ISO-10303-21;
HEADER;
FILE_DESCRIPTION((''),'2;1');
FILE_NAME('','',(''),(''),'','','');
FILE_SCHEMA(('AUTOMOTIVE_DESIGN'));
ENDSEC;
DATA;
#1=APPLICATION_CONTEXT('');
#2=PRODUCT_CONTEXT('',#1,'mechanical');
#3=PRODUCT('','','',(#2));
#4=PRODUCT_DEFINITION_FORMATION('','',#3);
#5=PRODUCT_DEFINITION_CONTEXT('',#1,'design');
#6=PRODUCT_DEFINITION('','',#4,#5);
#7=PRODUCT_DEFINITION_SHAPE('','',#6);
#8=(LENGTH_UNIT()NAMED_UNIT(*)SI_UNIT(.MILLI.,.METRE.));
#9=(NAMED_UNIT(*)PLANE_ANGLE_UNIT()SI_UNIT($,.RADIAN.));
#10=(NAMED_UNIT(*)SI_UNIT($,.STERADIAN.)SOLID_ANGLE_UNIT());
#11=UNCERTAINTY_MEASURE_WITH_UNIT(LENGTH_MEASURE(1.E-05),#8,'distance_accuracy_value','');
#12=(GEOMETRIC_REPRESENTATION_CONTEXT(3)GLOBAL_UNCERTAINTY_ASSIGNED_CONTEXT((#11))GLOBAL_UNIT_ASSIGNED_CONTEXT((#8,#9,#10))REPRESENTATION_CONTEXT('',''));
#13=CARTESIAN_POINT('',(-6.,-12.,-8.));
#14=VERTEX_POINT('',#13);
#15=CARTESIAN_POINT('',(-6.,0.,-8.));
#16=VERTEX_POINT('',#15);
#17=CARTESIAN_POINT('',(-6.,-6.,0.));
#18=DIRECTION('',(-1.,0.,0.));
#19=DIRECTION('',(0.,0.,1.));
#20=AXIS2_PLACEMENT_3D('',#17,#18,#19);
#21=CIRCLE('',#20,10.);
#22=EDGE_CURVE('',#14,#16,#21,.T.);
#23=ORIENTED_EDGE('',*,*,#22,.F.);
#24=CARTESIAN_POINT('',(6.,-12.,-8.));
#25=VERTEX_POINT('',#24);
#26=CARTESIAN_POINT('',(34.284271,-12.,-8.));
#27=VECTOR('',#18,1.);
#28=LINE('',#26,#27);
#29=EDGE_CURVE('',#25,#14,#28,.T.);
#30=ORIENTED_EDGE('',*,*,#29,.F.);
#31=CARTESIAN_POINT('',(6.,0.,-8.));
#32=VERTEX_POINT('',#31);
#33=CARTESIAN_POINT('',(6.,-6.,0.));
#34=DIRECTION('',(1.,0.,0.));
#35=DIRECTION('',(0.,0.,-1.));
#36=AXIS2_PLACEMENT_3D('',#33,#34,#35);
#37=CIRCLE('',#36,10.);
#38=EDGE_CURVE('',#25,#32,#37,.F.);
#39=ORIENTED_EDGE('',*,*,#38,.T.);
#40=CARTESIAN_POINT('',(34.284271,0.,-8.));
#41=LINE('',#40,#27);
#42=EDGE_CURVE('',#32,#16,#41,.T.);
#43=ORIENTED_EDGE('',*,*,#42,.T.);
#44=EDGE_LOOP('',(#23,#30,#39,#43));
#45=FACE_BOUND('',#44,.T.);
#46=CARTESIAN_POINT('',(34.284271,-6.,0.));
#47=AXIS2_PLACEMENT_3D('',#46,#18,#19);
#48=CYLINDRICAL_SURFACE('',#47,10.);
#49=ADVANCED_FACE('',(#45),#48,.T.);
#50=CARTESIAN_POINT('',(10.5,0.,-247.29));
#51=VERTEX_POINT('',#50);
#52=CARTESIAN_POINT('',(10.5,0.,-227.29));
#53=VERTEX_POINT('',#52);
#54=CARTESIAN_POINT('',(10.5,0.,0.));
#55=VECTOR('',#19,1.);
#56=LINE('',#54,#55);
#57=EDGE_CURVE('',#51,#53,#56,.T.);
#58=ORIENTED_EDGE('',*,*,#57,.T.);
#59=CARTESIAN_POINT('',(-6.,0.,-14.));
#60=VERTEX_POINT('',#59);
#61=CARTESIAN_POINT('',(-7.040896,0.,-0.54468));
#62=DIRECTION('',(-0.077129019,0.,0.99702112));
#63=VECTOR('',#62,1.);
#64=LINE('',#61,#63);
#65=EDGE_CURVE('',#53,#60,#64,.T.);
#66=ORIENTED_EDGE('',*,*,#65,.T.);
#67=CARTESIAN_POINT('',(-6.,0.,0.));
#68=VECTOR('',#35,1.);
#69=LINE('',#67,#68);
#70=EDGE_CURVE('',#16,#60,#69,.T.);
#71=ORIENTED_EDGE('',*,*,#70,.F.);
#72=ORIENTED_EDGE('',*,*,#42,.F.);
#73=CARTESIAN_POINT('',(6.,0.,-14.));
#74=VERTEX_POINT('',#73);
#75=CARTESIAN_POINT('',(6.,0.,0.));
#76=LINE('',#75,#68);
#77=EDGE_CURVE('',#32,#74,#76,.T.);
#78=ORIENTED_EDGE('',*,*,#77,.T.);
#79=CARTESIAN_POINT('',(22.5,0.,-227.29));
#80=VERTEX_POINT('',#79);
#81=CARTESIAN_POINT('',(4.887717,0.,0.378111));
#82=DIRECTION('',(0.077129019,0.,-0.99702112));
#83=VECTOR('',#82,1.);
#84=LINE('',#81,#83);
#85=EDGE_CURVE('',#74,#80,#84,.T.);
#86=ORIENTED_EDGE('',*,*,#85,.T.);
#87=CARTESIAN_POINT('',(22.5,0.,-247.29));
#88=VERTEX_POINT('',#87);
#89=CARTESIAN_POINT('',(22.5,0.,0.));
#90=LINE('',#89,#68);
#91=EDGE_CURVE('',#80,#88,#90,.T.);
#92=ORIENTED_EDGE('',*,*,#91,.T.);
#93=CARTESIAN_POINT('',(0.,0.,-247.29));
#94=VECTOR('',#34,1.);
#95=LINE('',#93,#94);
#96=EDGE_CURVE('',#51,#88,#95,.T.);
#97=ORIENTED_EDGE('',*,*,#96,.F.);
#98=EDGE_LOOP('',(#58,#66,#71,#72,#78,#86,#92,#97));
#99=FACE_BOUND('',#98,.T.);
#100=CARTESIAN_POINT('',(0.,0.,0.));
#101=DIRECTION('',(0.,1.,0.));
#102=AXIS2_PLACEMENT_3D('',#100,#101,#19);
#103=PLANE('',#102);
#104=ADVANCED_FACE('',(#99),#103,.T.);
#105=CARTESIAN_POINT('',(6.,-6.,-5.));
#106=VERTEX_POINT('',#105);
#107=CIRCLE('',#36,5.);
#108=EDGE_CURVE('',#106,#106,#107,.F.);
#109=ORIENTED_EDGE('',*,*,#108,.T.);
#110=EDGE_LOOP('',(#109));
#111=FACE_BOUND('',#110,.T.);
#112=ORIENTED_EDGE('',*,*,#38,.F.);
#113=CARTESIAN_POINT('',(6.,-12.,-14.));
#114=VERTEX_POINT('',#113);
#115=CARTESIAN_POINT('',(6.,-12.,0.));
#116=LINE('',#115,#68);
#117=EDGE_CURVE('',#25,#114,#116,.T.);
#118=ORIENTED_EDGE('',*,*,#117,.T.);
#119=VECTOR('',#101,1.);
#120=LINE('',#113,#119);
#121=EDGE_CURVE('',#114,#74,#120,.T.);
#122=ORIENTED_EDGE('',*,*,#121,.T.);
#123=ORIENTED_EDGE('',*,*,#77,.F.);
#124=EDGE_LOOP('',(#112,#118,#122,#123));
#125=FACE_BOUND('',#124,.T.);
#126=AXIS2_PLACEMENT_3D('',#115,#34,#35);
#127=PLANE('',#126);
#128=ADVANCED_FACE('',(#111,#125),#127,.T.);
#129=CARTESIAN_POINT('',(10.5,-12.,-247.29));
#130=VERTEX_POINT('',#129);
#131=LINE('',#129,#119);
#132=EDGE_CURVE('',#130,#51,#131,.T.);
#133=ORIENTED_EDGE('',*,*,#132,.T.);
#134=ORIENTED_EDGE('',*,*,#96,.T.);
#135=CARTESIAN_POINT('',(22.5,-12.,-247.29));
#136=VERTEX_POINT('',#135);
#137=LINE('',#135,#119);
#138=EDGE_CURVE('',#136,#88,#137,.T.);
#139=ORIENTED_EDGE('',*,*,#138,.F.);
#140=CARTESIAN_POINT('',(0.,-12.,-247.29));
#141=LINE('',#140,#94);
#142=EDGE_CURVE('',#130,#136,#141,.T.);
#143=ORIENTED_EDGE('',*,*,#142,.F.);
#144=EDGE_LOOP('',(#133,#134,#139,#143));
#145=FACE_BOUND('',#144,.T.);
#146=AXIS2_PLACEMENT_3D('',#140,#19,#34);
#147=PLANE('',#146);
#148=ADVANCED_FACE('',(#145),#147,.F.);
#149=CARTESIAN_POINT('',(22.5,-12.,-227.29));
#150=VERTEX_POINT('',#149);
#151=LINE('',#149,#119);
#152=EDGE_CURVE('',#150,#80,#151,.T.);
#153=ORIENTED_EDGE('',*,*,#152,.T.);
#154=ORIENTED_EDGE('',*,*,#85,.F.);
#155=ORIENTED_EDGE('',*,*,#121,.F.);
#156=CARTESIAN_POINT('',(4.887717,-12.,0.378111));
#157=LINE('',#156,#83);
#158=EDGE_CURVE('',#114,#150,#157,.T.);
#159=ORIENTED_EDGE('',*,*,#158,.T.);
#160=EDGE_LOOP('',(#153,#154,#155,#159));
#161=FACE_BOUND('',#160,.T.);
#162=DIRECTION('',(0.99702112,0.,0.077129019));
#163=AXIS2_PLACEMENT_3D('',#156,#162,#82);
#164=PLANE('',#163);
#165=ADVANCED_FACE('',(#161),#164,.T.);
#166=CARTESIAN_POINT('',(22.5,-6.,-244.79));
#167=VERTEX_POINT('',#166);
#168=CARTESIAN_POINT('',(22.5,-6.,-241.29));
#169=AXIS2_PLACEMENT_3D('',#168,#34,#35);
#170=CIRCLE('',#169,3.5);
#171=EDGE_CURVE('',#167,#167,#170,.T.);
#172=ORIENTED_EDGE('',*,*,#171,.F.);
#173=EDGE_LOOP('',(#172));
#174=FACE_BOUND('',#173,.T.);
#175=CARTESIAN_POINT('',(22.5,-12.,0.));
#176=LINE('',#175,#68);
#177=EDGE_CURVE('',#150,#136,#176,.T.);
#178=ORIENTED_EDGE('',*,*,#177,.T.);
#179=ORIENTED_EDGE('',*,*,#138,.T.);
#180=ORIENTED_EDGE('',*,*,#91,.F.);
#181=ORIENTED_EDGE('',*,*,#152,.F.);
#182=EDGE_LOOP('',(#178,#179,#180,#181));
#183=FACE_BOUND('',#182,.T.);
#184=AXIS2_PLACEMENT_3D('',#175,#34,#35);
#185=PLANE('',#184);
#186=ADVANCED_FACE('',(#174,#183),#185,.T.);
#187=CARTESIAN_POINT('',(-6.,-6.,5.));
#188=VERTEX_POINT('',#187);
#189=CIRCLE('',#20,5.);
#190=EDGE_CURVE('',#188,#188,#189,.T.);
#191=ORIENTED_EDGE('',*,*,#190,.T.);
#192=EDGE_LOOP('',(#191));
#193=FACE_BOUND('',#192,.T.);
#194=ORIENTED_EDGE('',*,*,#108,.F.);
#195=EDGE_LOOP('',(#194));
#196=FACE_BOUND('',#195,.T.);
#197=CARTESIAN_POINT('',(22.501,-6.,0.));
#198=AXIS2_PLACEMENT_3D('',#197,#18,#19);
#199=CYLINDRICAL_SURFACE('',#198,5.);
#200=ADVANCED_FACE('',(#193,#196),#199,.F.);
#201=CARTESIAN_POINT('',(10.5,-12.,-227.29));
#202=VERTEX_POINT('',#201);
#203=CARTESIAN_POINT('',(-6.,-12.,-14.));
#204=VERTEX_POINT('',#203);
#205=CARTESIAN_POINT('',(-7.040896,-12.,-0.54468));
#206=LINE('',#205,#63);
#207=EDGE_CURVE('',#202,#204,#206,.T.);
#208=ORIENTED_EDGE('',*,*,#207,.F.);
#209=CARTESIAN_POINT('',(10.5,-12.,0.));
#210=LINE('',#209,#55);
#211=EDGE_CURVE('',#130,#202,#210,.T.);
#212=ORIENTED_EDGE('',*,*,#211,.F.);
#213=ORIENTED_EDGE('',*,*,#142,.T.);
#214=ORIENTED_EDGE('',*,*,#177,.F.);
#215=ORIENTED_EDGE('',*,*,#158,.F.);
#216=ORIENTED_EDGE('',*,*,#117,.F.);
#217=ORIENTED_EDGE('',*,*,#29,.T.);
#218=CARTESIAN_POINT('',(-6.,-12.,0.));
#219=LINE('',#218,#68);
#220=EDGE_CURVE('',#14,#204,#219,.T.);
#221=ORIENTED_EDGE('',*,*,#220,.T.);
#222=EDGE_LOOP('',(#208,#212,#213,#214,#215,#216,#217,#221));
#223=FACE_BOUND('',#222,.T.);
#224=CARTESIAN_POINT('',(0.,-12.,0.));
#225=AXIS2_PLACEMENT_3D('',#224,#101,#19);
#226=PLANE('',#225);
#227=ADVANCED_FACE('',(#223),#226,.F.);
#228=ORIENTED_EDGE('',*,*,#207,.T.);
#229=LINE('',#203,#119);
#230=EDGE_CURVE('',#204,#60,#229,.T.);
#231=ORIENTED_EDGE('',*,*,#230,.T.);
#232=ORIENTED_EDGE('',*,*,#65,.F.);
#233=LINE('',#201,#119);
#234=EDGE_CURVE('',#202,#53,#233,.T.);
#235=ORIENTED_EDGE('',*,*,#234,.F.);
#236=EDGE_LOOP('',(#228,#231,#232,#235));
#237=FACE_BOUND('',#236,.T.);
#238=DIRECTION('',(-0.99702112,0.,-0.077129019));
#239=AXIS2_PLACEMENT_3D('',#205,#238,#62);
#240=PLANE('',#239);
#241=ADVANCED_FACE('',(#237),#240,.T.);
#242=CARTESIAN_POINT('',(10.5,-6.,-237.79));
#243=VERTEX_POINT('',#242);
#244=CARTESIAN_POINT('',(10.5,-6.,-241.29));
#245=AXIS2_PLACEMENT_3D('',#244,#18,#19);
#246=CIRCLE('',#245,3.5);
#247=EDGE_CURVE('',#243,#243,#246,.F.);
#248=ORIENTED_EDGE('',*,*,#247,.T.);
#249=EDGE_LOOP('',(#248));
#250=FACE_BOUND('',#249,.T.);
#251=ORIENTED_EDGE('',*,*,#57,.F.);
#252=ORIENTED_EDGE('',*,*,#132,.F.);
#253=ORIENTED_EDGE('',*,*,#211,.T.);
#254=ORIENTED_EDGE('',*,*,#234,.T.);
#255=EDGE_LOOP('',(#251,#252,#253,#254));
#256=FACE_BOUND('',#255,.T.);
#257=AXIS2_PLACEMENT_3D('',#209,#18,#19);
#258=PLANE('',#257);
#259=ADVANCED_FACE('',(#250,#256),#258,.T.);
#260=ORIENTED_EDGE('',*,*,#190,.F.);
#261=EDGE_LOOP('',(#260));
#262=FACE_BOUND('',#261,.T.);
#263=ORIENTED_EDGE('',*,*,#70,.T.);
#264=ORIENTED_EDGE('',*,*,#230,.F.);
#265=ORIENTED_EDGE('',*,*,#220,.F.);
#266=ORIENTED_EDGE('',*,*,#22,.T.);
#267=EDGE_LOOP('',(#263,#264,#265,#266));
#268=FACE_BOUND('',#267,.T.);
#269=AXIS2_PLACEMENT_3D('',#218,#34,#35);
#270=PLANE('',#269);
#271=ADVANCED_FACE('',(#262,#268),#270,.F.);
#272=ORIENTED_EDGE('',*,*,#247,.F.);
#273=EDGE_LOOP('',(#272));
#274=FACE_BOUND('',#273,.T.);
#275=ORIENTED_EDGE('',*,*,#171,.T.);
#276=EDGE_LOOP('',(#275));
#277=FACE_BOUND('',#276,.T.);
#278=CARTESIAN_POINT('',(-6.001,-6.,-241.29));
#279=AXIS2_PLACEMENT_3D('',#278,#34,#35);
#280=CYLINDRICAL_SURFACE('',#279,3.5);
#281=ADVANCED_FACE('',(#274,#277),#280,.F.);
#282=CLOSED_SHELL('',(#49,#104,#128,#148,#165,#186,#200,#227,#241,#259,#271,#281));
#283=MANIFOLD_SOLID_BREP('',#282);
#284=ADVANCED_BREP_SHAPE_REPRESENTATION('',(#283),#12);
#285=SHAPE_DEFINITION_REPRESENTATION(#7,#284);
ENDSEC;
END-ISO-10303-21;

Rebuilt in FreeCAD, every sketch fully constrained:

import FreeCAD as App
import Part
import Sketcher

V = App.Vector


def add_polygon(sketch, points):
    """Adds a closed chain of lines whose ends are joined by coincident constraints."""
    first, n = sketch.GeometryCount, len(points)
    for a, b in zip(points, points[1:] + points[:1]):
        sketch.addGeometry(Part.LineSegment(App.Vector(*a, 0), App.Vector(*b, 0)), False)
    for i in range(n):
        sketch.addConstraint(Sketcher.Constraint("Coincident", first + i, 2, first + (i + 1) % n, 1))

doc = App.newDocument("Part")
body = doc.addObject("PartDesign::Body", "Body")

sketch1 = body.newObject("Sketcher::SketchObject", "Sketch")
sketch1.AttachmentSupport = (doc.getObject("XZ_Plane"), [""])
sketch1.MapMode = "FlatFace"
add_polygon(sketch1, [(6, -14), (22, -227), (22, -247), (10, -247), (10, -227), (-6, -14), (-6, 6), (6, 6)])
sketch1.addConstraint([
    Sketcher.Constraint("Vertical", 1),
    Sketcher.Constraint("Horizontal", 2),
    Sketcher.Constraint("Vertical", 3),
    Sketcher.Constraint("Vertical", 5),
    Sketcher.Constraint("Horizontal", 6),
    Sketcher.Constraint("Vertical", 7),
    Sketcher.Constraint("Symmetric", 4, 2, 7, 2, -2),
    Sketcher.Constraint("Parallel", 0, 4),
    Sketcher.Constraint("Horizontal", 0, 2, 3, 2),
    Sketcher.Constraint("Equal", 3, 5),
    Sketcher.Constraint("DistanceX", 2, 2, 2, 1, 12.0),
    Sketcher.Constraint("DistanceY", 1, 2, 1, 1, 20.0),
    Sketcher.Constraint("DistanceY", 4, 2, -1, 1, 14.0),
    Sketcher.Constraint("DistanceX", -1, 1, 0, 2, 22.5),
    Sketcher.Constraint("DistanceY", 0, 2, -1, 1, 227.29),
])
pad1 = body.newObject("PartDesign::Pad", "Pad")
pad1.Profile = sketch1
pad1.Length = 12

sketch2 = body.newObject("Sketcher::SketchObject", "Sketch001")
sketch2.AttachmentSupport = (doc.getObject("YZ_Plane"), [""])
sketch2.MapMode = "FlatFace"
sketch2.AttachmentOffset = App.Placement(V(0, 0, -6), App.Rotation())
sketch2.addGeometry(Part.Circle(V(-6, 0, 0), V(0, 0, 1), 5), False)
sketch2.addConstraint([
    Sketcher.Constraint("PointOnObject", 0, 3, -1),
    Sketcher.Constraint("Diameter", 0, 10.0),
    Sketcher.Constraint("DistanceX", 0, 3, -1, 1, 6.0),
])
pocket1 = body.newObject("PartDesign::Pocket", "Pocket")
pocket1.Profile = sketch2
pocket1.Type = "UpToFirst"
pocket1.Reversed = True

sketch3 = body.newObject("Sketcher::SketchObject", "Sketch002")
sketch3.AttachmentSupport = (doc.getObject("YZ_Plane"), [""])
sketch3.MapMode = "FlatFace"
sketch3.AttachmentOffset = App.Placement(V(0, 0, 22.5), App.Rotation())
sketch3.addGeometry(Part.Circle(V(-6, -241.3, 0), V(0, 0, 1), 3.5), False)
sketch3.addConstraint([
    Sketcher.Constraint("Diameter", 0, 7.0),
    Sketcher.Constraint("DistanceX", 0, 3, -1, 1, 6.0),
    Sketcher.Constraint("DistanceY", 0, 3, -1, 1, 241.29),
])
pocket2 = body.newObject("PartDesign::Pocket", "Pocket001")
pocket2.Profile = sketch3
pocket2.Type = "UpToFirst"

sketch4 = body.newObject("Sketcher::SketchObject", "Sketch003")
sketch4.AttachmentSupport = (doc.getObject("YZ_Plane"), [""])
sketch4.MapMode = "FlatFace"
sketch4.AttachmentOffset = App.Placement(V(0, 0, -6), App.Rotation())
sketch4.addGeometry([
    Part.Circle(V(-6, 0, 0), V(0, 0, 1), 10),
    Part.Circle(V(-6, 0, 0), V(0, 0, 1), 5),
], False)
sketch4.addConstraint([
    Sketcher.Constraint("Coincident", 1, 3, 0, 3),
    Sketcher.Constraint("PointOnObject", 0, 3, -1),
    Sketcher.Constraint("Diameter", 0, 20.0),
    Sketcher.Constraint("Diameter", 1, 10.0),
    Sketcher.Constraint("DistanceX", 0, 3, -1, 1, 6.0),
])
pad2 = body.newObject("PartDesign::Pad", "Pad001")
pad2.Profile = sketch4
pad2.Length = 12

doc.recompute()
